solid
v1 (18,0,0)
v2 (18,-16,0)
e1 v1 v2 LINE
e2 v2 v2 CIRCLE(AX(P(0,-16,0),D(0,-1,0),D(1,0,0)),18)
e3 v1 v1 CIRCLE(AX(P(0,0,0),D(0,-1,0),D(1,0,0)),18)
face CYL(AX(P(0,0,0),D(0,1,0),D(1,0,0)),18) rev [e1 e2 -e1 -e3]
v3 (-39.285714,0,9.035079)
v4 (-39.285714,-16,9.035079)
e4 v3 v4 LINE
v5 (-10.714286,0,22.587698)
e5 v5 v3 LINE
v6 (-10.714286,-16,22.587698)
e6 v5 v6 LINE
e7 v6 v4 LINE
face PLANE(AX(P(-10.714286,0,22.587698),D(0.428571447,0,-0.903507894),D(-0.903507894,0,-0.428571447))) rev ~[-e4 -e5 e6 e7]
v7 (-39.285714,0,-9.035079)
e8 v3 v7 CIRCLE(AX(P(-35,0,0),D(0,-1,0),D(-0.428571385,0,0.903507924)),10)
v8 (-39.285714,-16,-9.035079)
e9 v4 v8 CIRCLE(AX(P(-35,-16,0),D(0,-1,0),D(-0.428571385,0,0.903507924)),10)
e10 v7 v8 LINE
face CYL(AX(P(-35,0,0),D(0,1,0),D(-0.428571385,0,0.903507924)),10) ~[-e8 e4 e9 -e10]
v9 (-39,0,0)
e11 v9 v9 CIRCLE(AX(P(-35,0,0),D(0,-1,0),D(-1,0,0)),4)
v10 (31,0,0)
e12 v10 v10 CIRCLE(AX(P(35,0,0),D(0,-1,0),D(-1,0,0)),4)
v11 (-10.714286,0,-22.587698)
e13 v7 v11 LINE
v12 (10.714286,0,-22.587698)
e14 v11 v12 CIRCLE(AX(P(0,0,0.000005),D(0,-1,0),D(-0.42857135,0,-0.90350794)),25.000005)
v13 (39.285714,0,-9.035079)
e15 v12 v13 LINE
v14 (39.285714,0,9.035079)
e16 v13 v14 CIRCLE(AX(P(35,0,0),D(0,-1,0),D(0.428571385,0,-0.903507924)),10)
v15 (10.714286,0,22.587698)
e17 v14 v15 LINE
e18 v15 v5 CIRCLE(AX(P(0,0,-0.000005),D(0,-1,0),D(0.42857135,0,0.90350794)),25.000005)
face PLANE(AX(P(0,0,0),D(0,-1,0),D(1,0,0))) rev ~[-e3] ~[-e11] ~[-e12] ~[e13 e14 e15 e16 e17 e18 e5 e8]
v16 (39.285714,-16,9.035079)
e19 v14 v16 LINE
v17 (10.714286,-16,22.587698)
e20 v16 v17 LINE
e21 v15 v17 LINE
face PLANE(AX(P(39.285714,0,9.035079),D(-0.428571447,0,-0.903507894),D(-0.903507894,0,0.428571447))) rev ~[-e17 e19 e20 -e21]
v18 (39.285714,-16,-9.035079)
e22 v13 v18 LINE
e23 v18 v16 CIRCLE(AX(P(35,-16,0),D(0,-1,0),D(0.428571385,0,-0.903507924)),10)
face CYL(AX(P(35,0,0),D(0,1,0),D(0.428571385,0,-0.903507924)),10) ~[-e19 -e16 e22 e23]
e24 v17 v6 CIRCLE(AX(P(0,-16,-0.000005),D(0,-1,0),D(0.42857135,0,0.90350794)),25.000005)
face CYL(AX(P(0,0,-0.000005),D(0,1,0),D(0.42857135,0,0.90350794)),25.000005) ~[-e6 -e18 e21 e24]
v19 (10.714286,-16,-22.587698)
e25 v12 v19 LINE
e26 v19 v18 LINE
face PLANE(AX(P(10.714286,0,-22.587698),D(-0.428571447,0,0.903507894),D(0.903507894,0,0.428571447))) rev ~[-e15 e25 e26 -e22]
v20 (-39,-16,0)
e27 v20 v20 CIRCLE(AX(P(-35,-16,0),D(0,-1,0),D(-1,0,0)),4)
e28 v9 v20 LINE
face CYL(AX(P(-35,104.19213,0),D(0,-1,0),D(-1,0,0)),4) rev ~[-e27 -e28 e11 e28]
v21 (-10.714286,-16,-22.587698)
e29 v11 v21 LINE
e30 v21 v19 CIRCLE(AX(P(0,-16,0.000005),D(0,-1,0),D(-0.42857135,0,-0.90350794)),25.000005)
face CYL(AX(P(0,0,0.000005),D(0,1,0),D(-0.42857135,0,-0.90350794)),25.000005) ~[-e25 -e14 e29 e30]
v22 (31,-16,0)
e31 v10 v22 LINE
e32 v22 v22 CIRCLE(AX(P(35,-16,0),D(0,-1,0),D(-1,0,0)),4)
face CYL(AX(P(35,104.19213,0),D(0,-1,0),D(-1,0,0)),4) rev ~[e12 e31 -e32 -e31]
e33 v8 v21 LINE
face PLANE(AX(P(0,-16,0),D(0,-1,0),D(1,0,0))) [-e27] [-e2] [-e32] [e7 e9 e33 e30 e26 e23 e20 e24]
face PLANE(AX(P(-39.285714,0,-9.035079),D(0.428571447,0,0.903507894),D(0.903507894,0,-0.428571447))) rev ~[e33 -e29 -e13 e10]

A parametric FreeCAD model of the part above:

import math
import FreeCAD as App
import Part
import Sketcher
from FreeCAD import Vector
Q = App.Units.Quantity

doc = App.newDocument("Part")
body = doc.addObject("PartDesign::Body", "Body")

sketch1 = body.newObject("Sketcher::SketchObject", "Sketch")
sketch1.AttachmentSupport = (doc.getObject("XZ_Plane"), [""])
sketch1.MapMode = "FlatFace"
sketch1.addGeometry(Part.LineSegment(Vector(-39, -9, 0), Vector(-11, -23, 0)), False)
sketch1.addGeometry(Part.ArcOfCircle(Part.Circle(Vector(0, 0, 0), Vector(0, 0, 1), 25), math.radians(-115), math.radians(-65)), False)
sketch1.addGeometry(Part.LineSegment(Vector(11, -23, 0), Vector(39, -9, 0)), False)
sketch1.addGeometry(Part.ArcOfCircle(Part.Circle(Vector(35, 0, 0), Vector(0, 0, 1), 10), math.radians(-65), math.radians(65)), False)
sketch1.addGeometry(Part.LineSegment(Vector(39, 9, 0), Vector(11, 23, 0)), False)
sketch1.addGeometry(Part.ArcOfCircle(Part.Circle(Vector(0, 0, 0), Vector(0, 0, 1), 25), math.radians(65), math.radians(115)), False)
sketch1.addGeometry(Part.LineSegment(Vector(-11, 23, 0), Vector(-39, 9, 0)), False)
sketch1.addGeometry(Part.ArcOfCircle(Part.Circle(Vector(-35, 0, 0), Vector(0, 0, 1), 10), math.radians(115), math.radians(245)), False)
sketch1.addGeometry(Part.Circle(Vector(0, 0, 0), Vector(0, 0, 1), 18), False)
sketch1.addConstraint(Sketcher.Constraint("Tangent", 0, 2, 1, 1))
sketch1.addConstraint(Sketcher.Constraint("Tangent", 1, 2, 2, 1))
sketch1.addConstraint(Sketcher.Constraint("Tangent", 2, 2, 3, 1))
sketch1.addConstraint(Sketcher.Constraint("Tangent", 3, 2, 4, 1))
sketch1.addConstraint(Sketcher.Constraint("Tangent", 4, 2, 5, 1))
sketch1.addConstraint(Sketcher.Constraint("Tangent", 5, 2, 6, 1))
sketch1.addConstraint(Sketcher.Constraint("Tangent", 6, 2, 7, 1))
sketch1.addConstraint(Sketcher.Constraint("Tangent", 7, 2, 0, 1))
sketch1.addConstraint(Sketcher.Constraint("Coincident", 1, 3, -1, 1))
sketch1.addConstraint(Sketcher.Constraint("Coincident", 5, 3, -1, 1))
sketch1.addConstraint(Sketcher.Constraint("Coincident", 8, 3, -1, 1))
sketch1.addConstraint(Sketcher.Constraint("Equal", 1, 5))
sketch1.addConstraint(Sketcher.Constraint("Equal", 3, 7))
sketch1.addConstraint(Sketcher.Constraint("Symmetric", 3, 3, 7, 3, -1, 1))
sketch1.addConstraint(Sketcher.Constraint("PointOnObject", 3, 3, -1))
sketch1.addConstraint(Sketcher.Constraint("Diameter", 8, Q("36 mm")))
sketch1.addConstraint(Sketcher.Constraint("Radius", 3, Q("10 mm")))
sketch1.addConstraint(Sketcher.Constraint("DistanceX", -1, 1, 3, 3, Q("35 mm")))
sketch1.addConstraint(Sketcher.Constraint("Radius", 1, Q("25.000005 mm")))
pad1 = body.newObject("PartDesign::Pad", "Pad")
pad1.Profile = sketch1
pad1.Length = 16

sketch2 = body.newObject("Sketcher::SketchObject", "Sketch001")
sketch2.AttachmentSupport = (doc.getObject("XZ_Plane"), [""])
sketch2.MapMode = "FlatFace"
sketch2.addGeometry(Part.Circle(Vector(35, 0, 0), Vector(0, 0, 1), 4), False)
sketch2.addGeometry(Part.Circle(Vector(-35, 0, 0), Vector(0, 0, 1), 4), False)
sketch2.addConstraint(Sketcher.Constraint("Equal", 0, 1))
sketch2.addConstraint(Sketcher.Constraint("Symmetric", 0, 3, 1, 3, -1, 1))
sketch2.addConstraint(Sketcher.Constraint("PointOnObject", 0, 3, -1))
sketch2.addConstraint(Sketcher.Constraint("Diameter", 0, Q("8 mm")))
sketch2.addConstraint(Sketcher.Constraint("DistanceX", -1, 1, 0, 3, Q("35 mm")))
doc.recompute()
hole = body.newObject("PartDesign::Hole", "Hole")
hole.Profile = sketch2
hole.ThreadType = "None"
hole.Diameter = 8
hole.DepthType = "ThroughAll"
hole.Reversed = True

doc.recompute()
